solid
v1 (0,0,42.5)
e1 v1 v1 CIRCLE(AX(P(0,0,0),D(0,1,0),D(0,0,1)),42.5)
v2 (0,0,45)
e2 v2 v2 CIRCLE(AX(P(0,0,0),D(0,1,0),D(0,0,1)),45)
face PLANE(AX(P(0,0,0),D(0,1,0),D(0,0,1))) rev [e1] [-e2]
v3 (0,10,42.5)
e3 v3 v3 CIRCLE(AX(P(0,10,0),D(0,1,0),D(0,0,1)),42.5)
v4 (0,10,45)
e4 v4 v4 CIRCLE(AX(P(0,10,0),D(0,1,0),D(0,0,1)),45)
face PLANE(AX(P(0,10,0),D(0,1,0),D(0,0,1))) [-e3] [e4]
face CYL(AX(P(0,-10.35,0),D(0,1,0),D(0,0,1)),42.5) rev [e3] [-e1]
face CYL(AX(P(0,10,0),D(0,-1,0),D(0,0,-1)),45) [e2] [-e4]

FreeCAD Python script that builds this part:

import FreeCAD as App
import Part
import Sketcher

V = App.Vector
Q = App.Units.Quantity

doc = App.newDocument("Part")
params = doc.addObject("Spreadsheet::Sheet", "Params")
for row, (alias, value) in enumerate([
    ("sketch1_diameter", "90 mm"),
    ("pad1_length", "10 mm"),
    ("sketch2_diameter", "85 mm"),
    ("pocket1_length", "20.35 mm"),
], start=1):
    params.set(f"A{row}", alias)
    params.set(f"B{row}", "=" + value)
    params.setAlias(f"B{row}", alias)

body = doc.addObject("PartDesign::Body", "Body")

# Sketch on XZ plane
sketch1 = body.newObject("Sketcher::SketchObject", "Sketch")
sketch1.AttachmentSupport = (doc.getObject("XZ_Plane"), [""])
sketch1.MapMode = "FlatFace"
sketch1.addGeometry(Part.Circle(V(0, 0, 0), V(0, 0, 1), 45), False)
sketch1.addConstraint([
    Sketcher.Constraint("Coincident", 0, 3, -1, 1),
    Sketcher.Constraint("Diameter", 0, Q("90 mm")),
])
sketch1.setExpression("Constraints[1]", "Params.sketch1_diameter")
pad1 = body.newObject("PartDesign::Pad", "Pad")
pad1.Profile = sketch1
pad1.setExpression("Length", "Params.pad1_length")
pad1.Reversed = True

# Sketch on XZ plane
sketch2 = body.newObject("Sketcher::SketchObject", "Sketch001")
sketch2.AttachmentSupport = (doc.getObject("XZ_Plane"), [""])
sketch2.MapMode = "FlatFace"
sketch2.AttachmentOffset = App.Placement(V(0, 0, -10), App.Rotation())
sketch2.addGeometry(Part.Circle(V(0, 0, 0), V(0, 0, 1), 42.5), False)
sketch2.addConstraint([
    Sketcher.Constraint("Coincident", 0, 3, -1, 1),
    Sketcher.Constraint("Diameter", 0, Q("85 mm")),
])
sketch2.setExpression("Constraints[1]", "Params.sketch2_diameter")
pocket1 = body.newObject("PartDesign::Pocket", "Pocket")
pocket1.Profile = sketch2
pocket1.setExpression("Length", "Params.pocket1_length")
pocket1.Reversed = True

doc.recompute()
